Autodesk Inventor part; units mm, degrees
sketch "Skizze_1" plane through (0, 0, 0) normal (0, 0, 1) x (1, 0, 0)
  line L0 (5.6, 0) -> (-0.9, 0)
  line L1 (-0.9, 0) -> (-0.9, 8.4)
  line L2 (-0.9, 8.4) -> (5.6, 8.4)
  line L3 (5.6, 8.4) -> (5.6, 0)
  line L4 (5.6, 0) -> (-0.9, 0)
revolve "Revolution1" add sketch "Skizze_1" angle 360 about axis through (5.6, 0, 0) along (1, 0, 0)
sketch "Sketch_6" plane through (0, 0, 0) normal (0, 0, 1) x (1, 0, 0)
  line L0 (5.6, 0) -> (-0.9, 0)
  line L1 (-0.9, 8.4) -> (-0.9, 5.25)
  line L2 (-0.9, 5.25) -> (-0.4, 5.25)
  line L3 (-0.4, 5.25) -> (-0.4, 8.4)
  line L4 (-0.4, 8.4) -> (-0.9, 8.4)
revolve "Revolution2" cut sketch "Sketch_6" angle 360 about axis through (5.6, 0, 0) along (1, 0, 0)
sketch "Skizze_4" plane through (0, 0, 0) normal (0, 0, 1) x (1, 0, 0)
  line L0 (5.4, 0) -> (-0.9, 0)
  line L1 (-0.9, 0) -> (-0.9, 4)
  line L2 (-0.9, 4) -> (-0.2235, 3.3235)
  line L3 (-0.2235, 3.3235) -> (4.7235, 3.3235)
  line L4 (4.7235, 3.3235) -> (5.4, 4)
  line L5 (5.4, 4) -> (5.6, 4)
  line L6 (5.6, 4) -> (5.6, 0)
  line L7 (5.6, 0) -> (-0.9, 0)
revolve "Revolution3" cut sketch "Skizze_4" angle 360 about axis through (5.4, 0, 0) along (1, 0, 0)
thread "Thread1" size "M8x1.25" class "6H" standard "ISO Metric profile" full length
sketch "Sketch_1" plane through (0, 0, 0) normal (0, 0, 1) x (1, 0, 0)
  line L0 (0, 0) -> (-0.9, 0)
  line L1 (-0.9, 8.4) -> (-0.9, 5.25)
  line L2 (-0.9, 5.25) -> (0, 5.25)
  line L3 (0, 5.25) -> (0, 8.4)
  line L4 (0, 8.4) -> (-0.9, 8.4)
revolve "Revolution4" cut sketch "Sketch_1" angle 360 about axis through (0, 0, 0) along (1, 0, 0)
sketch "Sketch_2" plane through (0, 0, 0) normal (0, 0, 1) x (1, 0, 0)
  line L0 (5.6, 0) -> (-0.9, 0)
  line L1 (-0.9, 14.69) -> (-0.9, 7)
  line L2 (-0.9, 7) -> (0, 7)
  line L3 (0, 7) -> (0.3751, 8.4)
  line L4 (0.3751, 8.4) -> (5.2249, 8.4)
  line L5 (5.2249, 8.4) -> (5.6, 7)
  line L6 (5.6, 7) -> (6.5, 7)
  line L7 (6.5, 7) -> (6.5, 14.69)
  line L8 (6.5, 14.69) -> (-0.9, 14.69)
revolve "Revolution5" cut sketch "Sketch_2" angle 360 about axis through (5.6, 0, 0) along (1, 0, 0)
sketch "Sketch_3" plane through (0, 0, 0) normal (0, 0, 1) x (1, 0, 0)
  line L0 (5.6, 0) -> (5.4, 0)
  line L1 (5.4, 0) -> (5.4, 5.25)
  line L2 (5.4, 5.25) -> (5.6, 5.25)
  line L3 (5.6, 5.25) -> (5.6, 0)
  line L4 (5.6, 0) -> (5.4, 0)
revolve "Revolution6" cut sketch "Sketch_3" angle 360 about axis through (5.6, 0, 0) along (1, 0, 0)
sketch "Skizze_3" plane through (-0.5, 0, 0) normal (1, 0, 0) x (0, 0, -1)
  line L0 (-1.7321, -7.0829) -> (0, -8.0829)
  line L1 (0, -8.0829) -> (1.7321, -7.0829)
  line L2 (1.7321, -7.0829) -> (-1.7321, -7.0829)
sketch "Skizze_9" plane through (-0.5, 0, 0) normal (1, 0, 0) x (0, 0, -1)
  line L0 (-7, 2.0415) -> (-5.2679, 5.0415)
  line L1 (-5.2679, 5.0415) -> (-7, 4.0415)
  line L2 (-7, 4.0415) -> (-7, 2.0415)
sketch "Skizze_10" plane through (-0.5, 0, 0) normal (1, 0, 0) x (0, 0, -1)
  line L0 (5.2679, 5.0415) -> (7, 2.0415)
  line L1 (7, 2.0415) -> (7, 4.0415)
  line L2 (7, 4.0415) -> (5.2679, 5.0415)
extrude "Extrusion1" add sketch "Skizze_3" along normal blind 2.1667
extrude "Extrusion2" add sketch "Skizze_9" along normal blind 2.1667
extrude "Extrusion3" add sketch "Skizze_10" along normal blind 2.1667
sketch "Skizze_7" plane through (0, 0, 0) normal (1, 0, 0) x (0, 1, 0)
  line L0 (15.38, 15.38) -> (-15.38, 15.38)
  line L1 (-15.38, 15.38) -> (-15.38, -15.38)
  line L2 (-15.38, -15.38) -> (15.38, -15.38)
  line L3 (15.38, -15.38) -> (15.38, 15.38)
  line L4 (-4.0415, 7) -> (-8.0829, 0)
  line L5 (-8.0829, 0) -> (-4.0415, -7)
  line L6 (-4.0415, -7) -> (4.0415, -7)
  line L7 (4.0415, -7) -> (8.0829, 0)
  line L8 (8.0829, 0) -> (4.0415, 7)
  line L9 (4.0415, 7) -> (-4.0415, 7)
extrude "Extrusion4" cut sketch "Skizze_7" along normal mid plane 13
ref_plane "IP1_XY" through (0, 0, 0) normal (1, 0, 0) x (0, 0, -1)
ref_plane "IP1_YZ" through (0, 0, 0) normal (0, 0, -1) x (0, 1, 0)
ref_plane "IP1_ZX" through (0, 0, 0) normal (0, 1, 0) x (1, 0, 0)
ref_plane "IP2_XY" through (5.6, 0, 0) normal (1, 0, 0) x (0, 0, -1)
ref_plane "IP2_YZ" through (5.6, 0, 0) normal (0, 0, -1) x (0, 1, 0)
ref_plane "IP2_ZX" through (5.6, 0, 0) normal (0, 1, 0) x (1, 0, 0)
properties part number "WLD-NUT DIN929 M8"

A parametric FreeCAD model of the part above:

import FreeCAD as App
import Part
import Sketcher
Q = App.Units.Quantity


def add_polygon(sketch, points):
    """Adds a closed chain of lines whose ends are joined by coincident constraints."""
    first, n = sketch.GeometryCount, len(points)
    for a, b in zip(points, points[1:] + points[:1]):
        sketch.addGeometry(Part.LineSegment(App.Vector(*a, 0), App.Vector(*b, 0)), False)
    for i in range(n):
        sketch.addConstraint(Sketcher.Constraint("Coincident", first + i, 2, first + (i + 1) % n, 1))

doc = App.newDocument("Part")
params = doc.addObject("Spreadsheet::Sheet", "Params")
for row, (alias, value) in enumerate([
    ("sketch1_width", "6.5 mm"),
    ("sketch1_height", "8.4 mm"),
    ("revolution_angle", "360 deg"),
    ("sketch2_width", "0.5 mm"),
    ("sketch2_height", "3.15 mm"),
    ("groove_angle", "360 deg"),
    ("sketch3_height", "4 mm"),
    ("sketch3_width", "6.5 mm"),
    ("sketch3_width2", "0.2 mm"),
    ("groove2_angle", "360 deg"),
    ("sketch4_width", "0.9 mm"),
    ("sketch4_height", "3.15 mm"),
    ("groove3_angle", "360 deg"),
    ("sketch5_width", "7.4 mm"),
    ("sketch5_width2", "0.9 mm"),
    ("sketch5_height", "7.69 mm"),
    ("groove4_angle", "360 deg"),
    ("sketch6_width", "0.2 mm"),
    ("sketch6_height", "5.25 mm"),
    ("groove5_angle", "360 deg"),
    ("sketch7_length", "2 mm"),
    ("pad1_length", "2.1667 mm"),
    ("sketch8_width", "2 mm"),
    ("pad2_length", "2.1667 mm"),
    ("sketch9_width", "2 mm"),
    ("pad3_length", "2.1667 mm"),
    ("sketch10_width", "30.76 mm"),
    ("pocket1_length", "13 mm"),
], start=1):
    params.set(f"A{row}", alias)
    params.set(f"B{row}", "=" + value)
    params.setAlias(f"B{row}", alias)

body = doc.addObject("PartDesign::Body", "Body")

sketch1 = doc.addObject("Sketcher::SketchObject", "Sketch")
body.addObject(sketch1)
sketch1.AttachmentSupport = (doc.XY_Plane, [""])
sketch1.MapMode = "FlatFace"
add_polygon(sketch1, [(-1, 0), (6, 0), (6, 8), (-1, 8)])
sketch1.addConstraint(Sketcher.Constraint("Horizontal", 0))
sketch1.addConstraint(Sketcher.Constraint("Vertical", 1))
sketch1.addConstraint(Sketcher.Constraint("Horizontal", 2))
sketch1.addConstraint(Sketcher.Constraint("Vertical", 3))
sketch1.addConstraint(Sketcher.Constraint("PointOnObject", 0, 2, -1))
sketch1.addConstraint(Sketcher.Constraint("DistanceX", 0, 1, 0, 2, Q("6.5 mm")))
sketch1.addConstraint(Sketcher.Constraint("DistanceY", 1, 1, 1, 2, Q("8.4 mm")))
sketch1.addConstraint(Sketcher.Constraint("DistanceX", -1, 1, 0, 2, Q("5.6 mm")))
sketch1.setExpression("Constraints[9]", "Params.sketch1_width")
sketch1.setExpression("Constraints[10]", "Params.sketch1_height")
revolution = doc.addObject("PartDesign::Revolution", "Revolution")
body.addObject(revolution)
revolution.Profile = sketch1
revolution.ReferenceAxis = (sketch1, ["H_Axis"])
revolution.setExpression("Angle", "Params.revolution_angle")

sketch2 = doc.addObject("Sketcher::SketchObject", "Sketch001")
body.addObject(sketch2)
sketch2.AttachmentSupport = (doc.XY_Plane, [""])
sketch2.MapMode = "FlatFace"
add_polygon(sketch2, [(-0.4, 8.4), (-0.9, 8.4), (-0.9, 5.2), (-0.4, 5.2)])
sketch2.addConstraint(Sketcher.Constraint("Horizontal", 0))
sketch2.addConstraint(Sketcher.Constraint("Vertical", 1))
sketch2.addConstraint(Sketcher.Constraint("Horizontal", 2))
sketch2.addConstraint(Sketcher.Constraint("Vertical", 3))
sketch2.addConstraint(Sketcher.Constraint("DistanceX", 0, 2, 0, 1, Q("0.5 mm")))
sketch2.addConstraint(Sketcher.Constraint("DistanceY", 1, 2, 1, 1, Q("3.15 mm")))
sketch2.addConstraint(Sketcher.Constraint("DistanceX", 0, 2, -1, 1, Q("0.9 mm")))
sketch2.addConstraint(Sketcher.Constraint("DistanceY", -1, 1, 0, 2, Q("8.4 mm")))
sketch2.setExpression("Constraints[8]", "Params.sketch2_width")
sketch2.setExpression("Constraints[9]", "Params.sketch2_height")
groove = doc.addObject("PartDesign::Groove", "Groove")
body.addObject(groove)
groove.Profile = sketch2
groove.ReferenceAxis = (sketch2, ["H_Axis"])
groove.setExpression("Angle", "Params.groove_angle")

sketch3 = doc.addObject("Sketcher::SketchObject", "Sketch002")
body.addObject(sketch3)
sketch3.AttachmentSupport = (doc.XY_Plane, [""])
sketch3.MapMode = "FlatFace"
add_polygon(sketch3, [(-0.9, 0), (5.6, 0), (5.6, 4), (5.4, 4), (4.72, 3.32), (-0.22, 3.32), (-0.9, 4)])
sketch3.addConstraint(Sketcher.Constraint("Horizontal", 0))
sketch3.addConstraint(Sketcher.Constraint("Vertical", 1))
sketch3.addConstraint(Sketcher.Constraint("Horizontal", 2))
sketch3.addConstraint(Sketcher.Constraint("Horizontal", 4))
sketch3.addConstraint(Sketcher.Constraint("Vertical", 6))
sketch3.addConstraint(Sketcher.Constraint("PointOnObject", 0, 2, -1))
sketch3.addConstraint(Sketcher.Constraint("Perpendicular", 3, 5))
sketch3.addConstraint(Sketcher.Constraint("Horizontal", 2, 2, 5, 2))
sketch3.addConstraint(Sketcher.Constraint("Equal", 3, 5))
sketch3.addConstraint(Sketcher.Constraint("DistanceY", 1, 1, 1, 2, Q("4 mm")))
sketch3.addConstraint(Sketcher.Constraint("DistanceX", 0, 1, 0, 2, Q("6.5 mm")))
sketch3.addConstraint(Sketcher.Constraint("DistanceX", 2, 2, 2, 1, Q("0.2 mm")))
sketch3.addConstraint(Sketcher.Constraint("DistanceX", -1, 1, 0, 2, Q("5.6 mm")))
sketch3.addConstraint(Sketcher.Constraint("DistanceX", 4, 2, 4, 1, Q("4.947 mm")))
sketch3.setExpression("Constraints[16]", "Params.sketch3_height")
sketch3.setExpression("Constraints[17]", "Params.sketch3_width")
sketch3.setExpression("Constraints[18]", "Params.sketch3_width2")
groove2 = doc.addObject("PartDesign::Groove", "Groove001")
body.addObject(groove2)
groove2.Profile = sketch3
groove2.ReferenceAxis = (sketch3, ["H_Axis"])
groove2.setExpression("Angle", "Params.groove2_angle")

sketch4 = doc.addObject("Sketcher::SketchObject", "Sketch003")
body.addObject(sketch4)
sketch4.AttachmentSupport = (doc.XY_Plane, [""])
sketch4.MapMode = "FlatFace"
add_polygon(sketch4, [(0, 8.4), (-0.9, 8.4), (-0.9, 5.2), (0, 5.2)])
sketch4.addConstraint(Sketcher.Constraint("Horizontal", 0))
sketch4.addConstraint(Sketcher.Constraint("Vertical", 1))
sketch4.addConstraint(Sketcher.Constraint("Horizontal", 2))
sketch4.addConstraint(Sketcher.Constraint("Vertical", 3))
sketch4.addConstraint(Sketcher.Constraint("PointOnObject", 2, 2, -2))
sketch4.addConstraint(Sketcher.Constraint("DistanceX", 0, 2, 0, 1, Q("0.9 mm")))
sketch4.addConstraint(Sketcher.Constraint("DistanceY", 1, 2, 1, 1, Q("3.15 mm")))
sketch4.addConstraint(Sketcher.Constraint("DistanceY", -1, 1, 0, 2, Q("8.4 mm")))
sketch4.setExpression("Constraints[9]", "Params.sketch4_width")
sketch4.setExpression("Constraints[10]", "Params.sketch4_height")
groove3 = doc.addObject("PartDesign::Groove", "Groove002")
body.addObject(groove3)
groove3.Profile = sketch4
groove3.ReferenceAxis = (sketch4, ["H_Axis"])
groove3.setExpression("Angle", "Params.groove3_angle")

sketch5 = doc.addObject("Sketcher::SketchObject", "Sketch004")
body.addObject(sketch5)
sketch5.AttachmentSupport = (doc.XY_Plane, [""])
sketch5.MapMode = "FlatFace"
add_polygon(sketch5, [(6.5, 14.7), (-0.9, 14.7), (-0.9, 7), (0, 7), (0.4, 8.4), (5.2, 8.4), (5.6, 7), (6.5, 7)])
sketch5.addConstraint(Sketcher.Constraint("Horizontal", 0))
sketch5.addConstraint(Sketcher.Constraint("Vertical", 1))
sketch5.addConstraint(Sketcher.Constraint("Horizontal", 2))
sketch5.addConstraint(Sketcher.Constraint("Horizontal", 4))
sketch5.addConstraint(Sketcher.Constraint("Horizontal", 6))
sketch5.addConstraint(Sketcher.Constraint("Vertical", 7))
sketch5.addConstraint(Sketcher.Constraint("PointOnObject", 2, 2, -2))
sketch5.addConstraint(Sketcher.Constraint("Horizontal", 2, 2, 5, 2))
sketch5.addConstraint(Sketcher.Constraint("Equal", 2, 6))
sketch5.addConstraint(Sketcher.Constraint("Equal", 3, 5))
sketch5.addConstraint(Sketcher.Constraint("Angle", 3, Q("75.001 deg")))
sketch5.addConstraint(Sketcher.Constraint("DistanceX", 0, 2, 0, 1, Q("7.4 mm")))
sketch5.addConstraint(Sketcher.Constraint("DistanceX", 2, 1, 2, 2, Q("0.9 mm")))
sketch5.addConstraint(Sketcher.Constraint("DistanceY", -1, 1, 1, 2, Q("7 mm")))
sketch5.addConstraint(Sketcher.Constraint("DistanceY", 1, 2, 1, 1, Q("7.69 mm")))
sketch5.addConstraint(Sketcher.Constraint("DistanceY", -1, 1, 3, 2, Q("8.4 mm")))
sketch5.setExpression("Constraints[19]", "Params.sketch5_width")
sketch5.setExpression("Constraints[20]", "Params.sketch5_width2")
sketch5.setExpression("Constraints[22]", "Params.sketch5_height")
groove4 = doc.addObject("PartDesign::Groove", "Groove003")
body.addObject(groove4)
groove4.Profile = sketch5
groove4.ReferenceAxis = (sketch5, ["H_Axis"])
groove4.setExpression("Angle", "Params.groove4_angle")

sketch6 = doc.addObject("Sketcher::SketchObject", "Sketch005")
body.addObject(sketch6)
sketch6.AttachmentSupport = (doc.XY_Plane, [""])
sketch6.MapMode = "FlatFace"
add_polygon(sketch6, [(5.4, 0), (5.6, 0), (5.6, 5.25), (5.4, 5.25)])
sketch6.addConstraint(Sketcher.Constraint("Horizontal", 0))
sketch6.addConstraint(Sketcher.Constraint("Vertical", 1))
sketch6.addConstraint(Sketcher.Constraint("Horizontal", 2))
sketch6.addConstraint(Sketcher.Constraint("Vertical", 3))
sketch6.addConstraint(Sketcher.Constraint("PointOnObject", 0, 2, -1))
sketch6.addConstraint(Sketcher.Constraint("DistanceX", 0, 1, 0, 2, Q("0.2 mm")))
sketch6.addConstraint(Sketcher.Constraint("DistanceY", 1, 1, 1, 2, Q("5.25 mm")))
sketch6.addConstraint(Sketcher.Constraint("DistanceX", -1, 1, 0, 2, Q("5.6 mm")))
sketch6.setExpression("Constraints[9]", "Params.sketch6_width")
sketch6.setExpression("Constraints[10]", "Params.sketch6_height")
groove5 = doc.addObject("PartDesign::Groove", "Groove004")
body.addObject(groove5)
groove5.Profile = sketch6
groove5.ReferenceAxis = (sketch6, ["H_Axis"])
groove5.setExpression("Angle", "Params.groove5_angle")

sketch7 = doc.addObject("Sketcher::SketchObject", "Sketch006")
body.addObject(sketch7)
sketch7.AttachmentSupport = (doc.YZ_Plane, [""])
sketch7.MapMode = "FlatFace"
sketch7.AttachmentOffset = App.Placement(App.Vector(0, 0, -0.5), App.Rotation())
add_polygon(sketch7, [(-7.1, -1.7), (-7.1, 1.7), (-8.1, 0)])
sketch7.addConstraint(Sketcher.Constraint("Vertical", 0))
sketch7.addConstraint(Sketcher.Constraint("PointOnObject", 1, 2, -1))
sketch7.addConstraint(Sketcher.Constraint("Equal", 1, 2))
sketch7.addConstraint(Sketcher.Constraint("Angle", 1, Q("-119.9993 deg")))
sketch7.addConstraint(Sketcher.Constraint("Distance", 1, Q("2 mm")))
sketch7.addConstraint(Sketcher.Constraint("DistanceX", 0, 2, -1, 1, Q("7.083 mm")))
sketch7.setExpression("Constraints[7]", "Params.sketch7_length")
pad1 = doc.addObject("PartDesign::Pad", "Pad")
body.addObject(pad1)
pad1.Profile = sketch7
pad1.setExpression("Length", "Params.pad1_length")

sketch8 = doc.addObject("Sketcher::SketchObject", "Sketch007")
body.addObject(sketch8)
sketch8.AttachmentSupport = (doc.YZ_Plane, [""])
sketch8.MapMode = "FlatFace"
sketch8.AttachmentOffset = App.Placement(App.Vector(0, 0, -0.5), App.Rotation())
add_polygon(sketch8, [(4, 7), (2, 7), (5, 5.3)])
sketch8.addConstraint(Sketcher.Constraint("Horizontal", 0))
sketch8.addConstraint(Sketcher.Constraint("DistanceX", 0, 2, 0, 1, Q("2 mm")))
sketch8.addConstraint(Sketcher.Constraint("Angle", 1, Q("-30.0007 deg")))
sketch8.addConstraint(Sketcher.Constraint("Angle", 2, Q("119.9993 deg")))
sketch8.addConstraint(Sketcher.Constraint("DistanceY", -1, 1, 0, 2, Q("7 mm")))
sketch8.addConstraint(Sketcher.Constraint("DistanceX", -1, 1, 0, 2, Q("2.0415 mm")))
sketch8.setExpression("Constraints[4]", "Params.sketch8_width")
pad2 = doc.addObject("PartDesign::Pad", "Pad001")
body.addObject(pad2)
pad2.Profile = sketch8
pad2.setExpression("Length", "Params.pad2_length")

sketch9 = doc.addObject("Sketcher::SketchObject", "Sketch008")
body.addObject(sketch9)
sketch9.AttachmentSupport = (doc.YZ_Plane, [""])
sketch9.MapMode = "FlatFace"
sketch9.AttachmentOffset = App.Placement(App.Vector(0, 0, -0.5), App.Rotation())
add_polygon(sketch9, [(4, -7), (5, -5.3), (2, -7)])
sketch9.addConstraint(Sketcher.Constraint("Horizontal", 2))
sketch9.addConstraint(Sketcher.Constraint("DistanceX", 2, 1, 2, 2, Q("2 mm")))
sketch9.addConstraint(Sketcher.Constraint("Angle", 0, Q("60.0007 deg")))
sketch9.addConstraint(Sketcher.Constraint("Angle", 1, Q("-149.9993 deg")))
sketch9.addConstraint(Sketcher.Constraint("DistanceY", 1, 2, -1, 1, Q("7 mm")))
sketch9.addConstraint(Sketcher.Constraint("DistanceX", -1, 1, 0, 2, Q("5.0415 mm")))
sketch9.setExpression("Constraints[4]", "Params.sketch9_width")
pad3 = doc.addObject("PartDesign::Pad", "Pad002")
body.addObject(pad3)
pad3.Profile = sketch9
pad3.setExpression("Length", "Params.pad3_length")

sketch10 = doc.addObject("Sketcher::SketchObject", "Sketch009")
body.addObject(sketch10)
sketch10.AttachmentSupport = (doc.YZ_Plane, [""])
sketch10.MapMode = "FlatFace"
add_polygon(sketch10, [(15, -15), (15, 15), (-15, 15), (-15, -15)])
add_polygon(sketch10, [(-8, 0), (-4, 7), (4, 7), (8, 0), (4, -7), (-4, -7)])
sketch10.addConstraint(Sketcher.Constraint("Vertical", 0))
sketch10.addConstraint(Sketcher.Constraint("Horizontal", 1))
sketch10.addConstraint(Sketcher.Constraint("Vertical", 2))
sketch10.addConstraint(Sketcher.Constraint("Horizontal", 3))
sketch10.addConstraint(Sketcher.Constraint("Horizontal", 5))
sketch10.addConstraint(Sketcher.Constraint("Horizontal", 8))
sketch10.addConstraint(Sketcher.Constraint("Symmetric", 0, 2, 2, 2, -1, 1))
sketch10.addConstraint(Sketcher.Constraint("Symmetric", 4, 2, 7, 2, -1, 1))
sketch10.addConstraint(Sketcher.Constraint("Symmetric", 6, 2, 9, 2, -1, 1))
sketch10.addConstraint(Sketcher.Constraint("PointOnObject", 6, 2, -1))
sketch10.addConstraint(Sketcher.Constraint("Parallel", 6, 9))
sketch10.addConstraint(Sketcher.Constraint("Vertical", 5, 2, 7, 2))
sketch10.addConstraint(Sketcher.Constraint("Equal", 3, 0))
sketch10.addConstraint(Sketcher.Constraint("Angle", 4, Q("60.0003 deg")))
sketch10.addConstraint(Sketcher.Constraint("DistanceY", -1, 1, 4, 2, Q("7 mm")))
sketch10.addConstraint(Sketcher.Constraint("DistanceX", 1, 2, 1, 1, Q("30.76 mm")))
sketch10.addConstraint(Sketcher.Constraint("DistanceX", 5, 1, 5, 2, Q("8.083 mm")))
sketch10.setExpression("Constraints[25]", "Params.sketch10_width")
pocket1 = doc.addObject("PartDesign::Pocket", "Pocket")
body.addObject(pocket1)
pocket1.Profile = sketch10
pocket1.setExpression("Length", "Params.pocket1_length")
pocket1.Midplane = True

doc.recompute()
